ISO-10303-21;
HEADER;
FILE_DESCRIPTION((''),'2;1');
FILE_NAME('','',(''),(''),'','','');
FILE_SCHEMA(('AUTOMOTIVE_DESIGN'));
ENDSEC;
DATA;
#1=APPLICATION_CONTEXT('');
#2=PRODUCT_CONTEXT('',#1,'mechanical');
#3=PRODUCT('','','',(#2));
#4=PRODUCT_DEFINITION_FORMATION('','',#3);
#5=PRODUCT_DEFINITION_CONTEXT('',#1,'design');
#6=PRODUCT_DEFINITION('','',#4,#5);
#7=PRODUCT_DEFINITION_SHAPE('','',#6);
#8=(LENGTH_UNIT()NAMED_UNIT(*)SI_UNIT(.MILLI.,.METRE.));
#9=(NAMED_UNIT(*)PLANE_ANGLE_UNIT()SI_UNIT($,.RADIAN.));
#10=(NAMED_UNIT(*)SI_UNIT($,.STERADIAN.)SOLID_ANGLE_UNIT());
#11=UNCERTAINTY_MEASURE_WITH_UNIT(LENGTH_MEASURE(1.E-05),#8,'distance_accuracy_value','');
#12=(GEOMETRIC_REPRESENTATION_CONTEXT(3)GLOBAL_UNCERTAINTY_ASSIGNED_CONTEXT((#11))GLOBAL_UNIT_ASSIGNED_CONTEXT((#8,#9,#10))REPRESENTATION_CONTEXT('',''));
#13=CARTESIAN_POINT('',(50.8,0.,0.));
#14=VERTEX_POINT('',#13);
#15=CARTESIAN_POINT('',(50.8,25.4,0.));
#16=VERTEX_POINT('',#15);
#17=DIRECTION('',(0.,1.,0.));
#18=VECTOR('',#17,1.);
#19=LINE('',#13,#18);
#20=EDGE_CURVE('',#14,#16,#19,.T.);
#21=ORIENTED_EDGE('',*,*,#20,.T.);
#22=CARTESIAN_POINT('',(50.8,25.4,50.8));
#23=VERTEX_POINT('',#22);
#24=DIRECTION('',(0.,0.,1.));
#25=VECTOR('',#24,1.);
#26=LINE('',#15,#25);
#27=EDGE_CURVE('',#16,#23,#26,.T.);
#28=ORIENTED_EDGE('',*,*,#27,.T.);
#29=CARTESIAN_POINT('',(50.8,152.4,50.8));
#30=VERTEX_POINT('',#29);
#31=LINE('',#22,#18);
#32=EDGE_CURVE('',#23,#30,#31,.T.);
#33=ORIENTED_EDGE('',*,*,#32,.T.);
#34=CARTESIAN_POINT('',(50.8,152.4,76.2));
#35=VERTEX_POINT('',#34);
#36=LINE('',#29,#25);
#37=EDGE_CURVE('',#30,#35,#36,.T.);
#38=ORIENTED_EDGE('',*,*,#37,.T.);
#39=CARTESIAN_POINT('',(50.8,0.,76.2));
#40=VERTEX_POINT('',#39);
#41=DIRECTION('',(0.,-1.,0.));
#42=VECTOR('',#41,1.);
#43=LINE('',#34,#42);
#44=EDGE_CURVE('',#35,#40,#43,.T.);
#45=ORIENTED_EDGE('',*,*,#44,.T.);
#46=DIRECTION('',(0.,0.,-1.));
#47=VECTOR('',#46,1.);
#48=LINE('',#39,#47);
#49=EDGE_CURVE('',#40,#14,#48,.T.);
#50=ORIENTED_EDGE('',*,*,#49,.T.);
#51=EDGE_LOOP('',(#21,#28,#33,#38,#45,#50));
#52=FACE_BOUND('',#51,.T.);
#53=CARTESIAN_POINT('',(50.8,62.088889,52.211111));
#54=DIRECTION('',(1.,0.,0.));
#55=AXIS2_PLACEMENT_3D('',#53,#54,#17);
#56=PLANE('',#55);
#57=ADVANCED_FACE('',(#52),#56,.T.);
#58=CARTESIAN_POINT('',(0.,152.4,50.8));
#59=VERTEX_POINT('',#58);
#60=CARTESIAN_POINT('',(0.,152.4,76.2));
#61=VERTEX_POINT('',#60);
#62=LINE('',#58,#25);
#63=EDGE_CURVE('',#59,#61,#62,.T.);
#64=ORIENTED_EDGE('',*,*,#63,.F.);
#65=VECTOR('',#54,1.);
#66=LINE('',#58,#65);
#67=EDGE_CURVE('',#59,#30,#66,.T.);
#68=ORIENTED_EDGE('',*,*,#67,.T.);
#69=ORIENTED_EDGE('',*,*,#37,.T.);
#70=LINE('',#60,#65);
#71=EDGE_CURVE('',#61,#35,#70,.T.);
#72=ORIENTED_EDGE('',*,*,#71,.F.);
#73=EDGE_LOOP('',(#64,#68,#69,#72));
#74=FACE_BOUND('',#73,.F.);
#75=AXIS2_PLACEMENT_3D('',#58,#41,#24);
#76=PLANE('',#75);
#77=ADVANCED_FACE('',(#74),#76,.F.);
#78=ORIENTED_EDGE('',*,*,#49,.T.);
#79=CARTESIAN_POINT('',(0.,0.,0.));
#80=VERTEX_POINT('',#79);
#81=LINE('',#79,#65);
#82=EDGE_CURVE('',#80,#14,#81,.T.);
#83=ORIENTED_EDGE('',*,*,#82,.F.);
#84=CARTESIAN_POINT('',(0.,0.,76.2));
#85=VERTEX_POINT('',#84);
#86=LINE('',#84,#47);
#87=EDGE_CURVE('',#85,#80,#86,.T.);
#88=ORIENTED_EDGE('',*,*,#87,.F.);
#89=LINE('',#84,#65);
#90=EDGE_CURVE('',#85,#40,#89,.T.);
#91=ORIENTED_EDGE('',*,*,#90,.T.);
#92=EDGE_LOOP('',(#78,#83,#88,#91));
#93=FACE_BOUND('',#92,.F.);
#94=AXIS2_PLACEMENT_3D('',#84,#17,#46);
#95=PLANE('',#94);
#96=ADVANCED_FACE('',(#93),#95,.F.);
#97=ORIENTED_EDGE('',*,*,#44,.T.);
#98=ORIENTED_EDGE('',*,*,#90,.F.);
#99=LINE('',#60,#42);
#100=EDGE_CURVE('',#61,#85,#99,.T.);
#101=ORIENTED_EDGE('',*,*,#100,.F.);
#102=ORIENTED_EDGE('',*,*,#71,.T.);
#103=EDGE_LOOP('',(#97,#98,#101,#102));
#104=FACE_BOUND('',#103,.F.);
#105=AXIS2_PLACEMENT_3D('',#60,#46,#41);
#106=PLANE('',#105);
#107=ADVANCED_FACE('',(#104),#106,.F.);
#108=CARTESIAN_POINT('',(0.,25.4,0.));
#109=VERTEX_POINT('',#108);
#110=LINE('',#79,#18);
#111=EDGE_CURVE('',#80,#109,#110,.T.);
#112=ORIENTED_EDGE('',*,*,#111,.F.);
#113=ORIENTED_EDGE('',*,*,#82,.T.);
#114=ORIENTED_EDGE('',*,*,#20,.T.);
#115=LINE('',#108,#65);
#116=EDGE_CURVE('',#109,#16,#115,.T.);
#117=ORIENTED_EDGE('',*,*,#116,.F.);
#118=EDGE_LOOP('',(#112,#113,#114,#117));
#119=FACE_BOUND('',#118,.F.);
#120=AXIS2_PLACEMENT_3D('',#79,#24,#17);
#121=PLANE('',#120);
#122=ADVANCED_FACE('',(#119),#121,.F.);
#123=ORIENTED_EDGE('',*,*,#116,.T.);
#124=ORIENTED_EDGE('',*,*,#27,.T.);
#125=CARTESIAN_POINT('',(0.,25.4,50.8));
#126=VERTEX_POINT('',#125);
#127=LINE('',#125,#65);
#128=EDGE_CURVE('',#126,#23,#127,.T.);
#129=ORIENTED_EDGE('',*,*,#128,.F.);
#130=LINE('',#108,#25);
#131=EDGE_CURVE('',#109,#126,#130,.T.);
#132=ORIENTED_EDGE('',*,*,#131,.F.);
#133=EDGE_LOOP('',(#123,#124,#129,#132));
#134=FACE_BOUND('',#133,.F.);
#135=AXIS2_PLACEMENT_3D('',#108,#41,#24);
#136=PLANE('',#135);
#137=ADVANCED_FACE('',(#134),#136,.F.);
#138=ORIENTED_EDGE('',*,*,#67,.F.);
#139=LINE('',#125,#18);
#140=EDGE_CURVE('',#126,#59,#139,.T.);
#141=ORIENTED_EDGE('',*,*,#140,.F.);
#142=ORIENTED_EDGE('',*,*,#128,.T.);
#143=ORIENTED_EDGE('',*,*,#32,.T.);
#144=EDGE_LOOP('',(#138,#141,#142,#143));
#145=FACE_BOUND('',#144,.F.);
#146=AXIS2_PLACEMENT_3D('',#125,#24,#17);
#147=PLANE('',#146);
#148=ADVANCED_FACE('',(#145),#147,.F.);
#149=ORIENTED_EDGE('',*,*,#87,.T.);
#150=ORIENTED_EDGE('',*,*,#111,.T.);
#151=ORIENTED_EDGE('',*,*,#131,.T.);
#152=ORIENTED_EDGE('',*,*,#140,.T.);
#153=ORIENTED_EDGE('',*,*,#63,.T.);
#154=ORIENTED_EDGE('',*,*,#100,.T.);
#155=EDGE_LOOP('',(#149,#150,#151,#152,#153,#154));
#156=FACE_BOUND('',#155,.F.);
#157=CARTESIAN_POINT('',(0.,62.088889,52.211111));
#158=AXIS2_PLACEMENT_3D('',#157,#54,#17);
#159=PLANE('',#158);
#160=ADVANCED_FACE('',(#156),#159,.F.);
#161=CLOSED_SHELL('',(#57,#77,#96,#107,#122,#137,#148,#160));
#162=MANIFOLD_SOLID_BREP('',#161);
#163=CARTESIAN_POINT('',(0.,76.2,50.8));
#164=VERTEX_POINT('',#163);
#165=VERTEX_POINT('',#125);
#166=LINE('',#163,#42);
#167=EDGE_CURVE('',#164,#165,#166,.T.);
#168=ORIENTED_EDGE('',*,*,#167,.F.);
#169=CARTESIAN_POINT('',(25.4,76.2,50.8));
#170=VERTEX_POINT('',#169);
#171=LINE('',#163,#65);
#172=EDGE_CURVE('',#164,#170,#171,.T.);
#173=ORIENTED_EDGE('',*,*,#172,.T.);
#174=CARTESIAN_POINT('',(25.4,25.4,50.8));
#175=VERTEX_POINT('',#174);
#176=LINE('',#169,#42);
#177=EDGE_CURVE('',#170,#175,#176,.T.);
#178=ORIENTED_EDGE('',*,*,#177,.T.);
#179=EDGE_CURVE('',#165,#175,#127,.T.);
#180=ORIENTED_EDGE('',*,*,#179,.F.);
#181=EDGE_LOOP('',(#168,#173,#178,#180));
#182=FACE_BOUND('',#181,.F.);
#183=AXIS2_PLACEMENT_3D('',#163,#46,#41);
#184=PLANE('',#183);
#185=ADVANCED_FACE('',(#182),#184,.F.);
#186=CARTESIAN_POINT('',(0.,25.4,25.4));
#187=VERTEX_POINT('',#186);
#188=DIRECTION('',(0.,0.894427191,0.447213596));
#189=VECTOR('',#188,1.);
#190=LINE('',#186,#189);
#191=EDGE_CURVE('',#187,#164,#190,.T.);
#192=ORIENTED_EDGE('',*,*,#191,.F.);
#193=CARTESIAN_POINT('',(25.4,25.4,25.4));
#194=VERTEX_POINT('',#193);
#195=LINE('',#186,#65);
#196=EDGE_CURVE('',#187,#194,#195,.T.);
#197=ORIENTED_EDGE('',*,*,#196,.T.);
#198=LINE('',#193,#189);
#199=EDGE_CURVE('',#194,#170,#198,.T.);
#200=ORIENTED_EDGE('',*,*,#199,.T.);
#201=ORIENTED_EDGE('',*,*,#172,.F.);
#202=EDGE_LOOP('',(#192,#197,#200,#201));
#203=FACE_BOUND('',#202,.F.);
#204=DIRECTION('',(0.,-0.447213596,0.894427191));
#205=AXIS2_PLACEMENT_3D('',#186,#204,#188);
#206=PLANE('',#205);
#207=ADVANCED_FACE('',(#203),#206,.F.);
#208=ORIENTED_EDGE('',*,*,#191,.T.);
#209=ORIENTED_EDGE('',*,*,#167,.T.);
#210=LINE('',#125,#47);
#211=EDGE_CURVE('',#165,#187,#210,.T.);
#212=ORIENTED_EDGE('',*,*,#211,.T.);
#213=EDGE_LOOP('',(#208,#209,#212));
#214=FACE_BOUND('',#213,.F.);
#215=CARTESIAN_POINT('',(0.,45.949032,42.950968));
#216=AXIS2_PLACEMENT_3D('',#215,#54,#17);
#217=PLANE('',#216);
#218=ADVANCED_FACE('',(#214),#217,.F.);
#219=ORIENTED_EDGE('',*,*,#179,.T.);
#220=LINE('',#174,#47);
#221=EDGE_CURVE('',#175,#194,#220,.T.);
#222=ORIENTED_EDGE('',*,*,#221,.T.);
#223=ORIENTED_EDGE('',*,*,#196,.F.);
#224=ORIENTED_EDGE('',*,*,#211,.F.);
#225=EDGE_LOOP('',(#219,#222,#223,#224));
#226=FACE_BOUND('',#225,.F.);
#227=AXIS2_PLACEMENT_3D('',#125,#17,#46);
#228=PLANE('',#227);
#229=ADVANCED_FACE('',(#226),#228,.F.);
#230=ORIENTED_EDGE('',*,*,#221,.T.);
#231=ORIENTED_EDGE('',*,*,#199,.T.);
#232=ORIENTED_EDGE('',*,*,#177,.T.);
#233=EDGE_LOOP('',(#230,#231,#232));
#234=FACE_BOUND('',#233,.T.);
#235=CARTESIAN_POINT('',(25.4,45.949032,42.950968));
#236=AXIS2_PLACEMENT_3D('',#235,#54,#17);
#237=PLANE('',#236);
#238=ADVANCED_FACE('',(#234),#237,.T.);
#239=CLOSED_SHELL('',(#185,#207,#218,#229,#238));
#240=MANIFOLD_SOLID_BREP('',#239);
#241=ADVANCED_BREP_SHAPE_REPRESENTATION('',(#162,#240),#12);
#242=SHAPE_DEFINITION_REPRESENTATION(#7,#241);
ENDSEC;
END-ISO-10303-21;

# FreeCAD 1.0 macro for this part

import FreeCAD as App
import Part
import Sketcher
Q = App.Units.Quantity

doc = App.newDocument("Part")
body = doc.addObject("PartDesign::Body", "Body")

sketch1 = body.newObject("Sketcher::SketchObject", "Sketch")
sketch1.AttachmentSupport = (doc.getObject("YZ_Plane"), [""])
sketch1.MapMode = "FlatFace"
sketch1.addGeometry(Part.LineSegment(App.Vector(0, 76, 0), App.Vector(0, 0, 0)), False)
sketch1.addGeometry(Part.LineSegment(App.Vector(0, 0, 0), App.Vector(25, 0, 0)), False)
sketch1.addGeometry(Part.LineSegment(App.Vector(25, 0, 0), App.Vector(25, 51, 0)), False)
sketch1.addGeometry(Part.LineSegment(App.Vector(25, 51, 0), App.Vector(152, 51, 0)), False)
sketch1.addGeometry(Part.LineSegment(App.Vector(152, 51, 0), App.Vector(152, 76, 0)), False)
sketch1.addGeometry(Part.LineSegment(App.Vector(152, 76, 0), App.Vector(0, 76, 0)), False)
sketch1.addConstraint(Sketcher.Constraint("Coincident", 0, 2, 1, 1))
sketch1.addConstraint(Sketcher.Constraint("Coincident", 1, 2, 2, 1))
sketch1.addConstraint(Sketcher.Constraint("Coincident", 2, 2, 3, 1))
sketch1.addConstraint(Sketcher.Constraint("Coincident", 3, 2, 4, 1))
sketch1.addConstraint(Sketcher.Constraint("Coincident", 4, 2, 5, 1))
sketch1.addConstraint(Sketcher.Constraint("Coincident", 5, 2, 0, 1))
sketch1.addConstraint(Sketcher.Constraint("Vertical", 0))
sketch1.addConstraint(Sketcher.Constraint("Horizontal", 1))
sketch1.addConstraint(Sketcher.Constraint("Vertical", 2))
sketch1.addConstraint(Sketcher.Constraint("Horizontal", 3))
sketch1.addConstraint(Sketcher.Constraint("Vertical", 4))
sketch1.addConstraint(Sketcher.Constraint("Horizontal", 5))
sketch1.addConstraint(Sketcher.Constraint("Coincident", 0, 2, -1, 1))
sketch1.addConstraint(Sketcher.Constraint("Equal", 1, 4))
sketch1.addConstraint(Sketcher.Constraint("DistanceX", 1, 1, 1, 2, Q("1 in")))
sketch1.addConstraint(Sketcher.Constraint("DistanceX", 3, 1, 3, 2, Q("5 in")))
sketch1.addConstraint(Sketcher.Constraint("DistanceY", 0, 2, 0, 1, Q("3 in")))
pad1 = body.newObject("PartDesign::Pad", "Pad")
pad1.Profile = sketch1
pad1.Length = Q("2 in")
body2 = doc.addObject("PartDesign::Body", "Body001")

sketch2 = body2.newObject("Sketcher::SketchObject", "Sketch001")
sketch2.AttachmentSupport = (doc.getObject("YZ_Plane001"), [""])
sketch2.MapMode = "FlatFace"
sketch2.addGeometry(Part.LineSegment(App.Vector(76, 51, 0), App.Vector(25, 51, 0)), False)
sketch2.addGeometry(Part.LineSegment(App.Vector(25, 51, 0), App.Vector(25, 25, 0)), False)
sketch2.addGeometry(Part.LineSegment(App.Vector(25, 25, 0), App.Vector(76, 51, 0)), False)
sketch2.addConstraint(Sketcher.Constraint("Coincident", 0, 2, 1, 1))
sketch2.addConstraint(Sketcher.Constraint("Coincident", 1, 2, 2, 1))
sketch2.addConstraint(Sketcher.Constraint("Coincident", 2, 2, 0, 1))
sketch2.addConstraint(Sketcher.Constraint("Horizontal", 0))
sketch2.addConstraint(Sketcher.Constraint("Vertical", 1))
sketch2.addConstraint(Sketcher.Constraint("DistanceX", 0, 2, 0, 1, Q("2 in")))
sketch2.addConstraint(Sketcher.Constraint("DistanceY", 1, 2, 1, 1, Q("1 in")))
sketch2.addConstraint(Sketcher.Constraint("DistanceX", -1, 1, 0, 2, Q("1 in")))
sketch2.addConstraint(Sketcher.Constraint("DistanceY", -1, 1, 0, 2, Q("2 in")))
pad2 = body2.newObject("PartDesign::Pad", "Pad001")
pad2.Profile = sketch2
pad2.Length = Q("1 in")

doc.recompute()
